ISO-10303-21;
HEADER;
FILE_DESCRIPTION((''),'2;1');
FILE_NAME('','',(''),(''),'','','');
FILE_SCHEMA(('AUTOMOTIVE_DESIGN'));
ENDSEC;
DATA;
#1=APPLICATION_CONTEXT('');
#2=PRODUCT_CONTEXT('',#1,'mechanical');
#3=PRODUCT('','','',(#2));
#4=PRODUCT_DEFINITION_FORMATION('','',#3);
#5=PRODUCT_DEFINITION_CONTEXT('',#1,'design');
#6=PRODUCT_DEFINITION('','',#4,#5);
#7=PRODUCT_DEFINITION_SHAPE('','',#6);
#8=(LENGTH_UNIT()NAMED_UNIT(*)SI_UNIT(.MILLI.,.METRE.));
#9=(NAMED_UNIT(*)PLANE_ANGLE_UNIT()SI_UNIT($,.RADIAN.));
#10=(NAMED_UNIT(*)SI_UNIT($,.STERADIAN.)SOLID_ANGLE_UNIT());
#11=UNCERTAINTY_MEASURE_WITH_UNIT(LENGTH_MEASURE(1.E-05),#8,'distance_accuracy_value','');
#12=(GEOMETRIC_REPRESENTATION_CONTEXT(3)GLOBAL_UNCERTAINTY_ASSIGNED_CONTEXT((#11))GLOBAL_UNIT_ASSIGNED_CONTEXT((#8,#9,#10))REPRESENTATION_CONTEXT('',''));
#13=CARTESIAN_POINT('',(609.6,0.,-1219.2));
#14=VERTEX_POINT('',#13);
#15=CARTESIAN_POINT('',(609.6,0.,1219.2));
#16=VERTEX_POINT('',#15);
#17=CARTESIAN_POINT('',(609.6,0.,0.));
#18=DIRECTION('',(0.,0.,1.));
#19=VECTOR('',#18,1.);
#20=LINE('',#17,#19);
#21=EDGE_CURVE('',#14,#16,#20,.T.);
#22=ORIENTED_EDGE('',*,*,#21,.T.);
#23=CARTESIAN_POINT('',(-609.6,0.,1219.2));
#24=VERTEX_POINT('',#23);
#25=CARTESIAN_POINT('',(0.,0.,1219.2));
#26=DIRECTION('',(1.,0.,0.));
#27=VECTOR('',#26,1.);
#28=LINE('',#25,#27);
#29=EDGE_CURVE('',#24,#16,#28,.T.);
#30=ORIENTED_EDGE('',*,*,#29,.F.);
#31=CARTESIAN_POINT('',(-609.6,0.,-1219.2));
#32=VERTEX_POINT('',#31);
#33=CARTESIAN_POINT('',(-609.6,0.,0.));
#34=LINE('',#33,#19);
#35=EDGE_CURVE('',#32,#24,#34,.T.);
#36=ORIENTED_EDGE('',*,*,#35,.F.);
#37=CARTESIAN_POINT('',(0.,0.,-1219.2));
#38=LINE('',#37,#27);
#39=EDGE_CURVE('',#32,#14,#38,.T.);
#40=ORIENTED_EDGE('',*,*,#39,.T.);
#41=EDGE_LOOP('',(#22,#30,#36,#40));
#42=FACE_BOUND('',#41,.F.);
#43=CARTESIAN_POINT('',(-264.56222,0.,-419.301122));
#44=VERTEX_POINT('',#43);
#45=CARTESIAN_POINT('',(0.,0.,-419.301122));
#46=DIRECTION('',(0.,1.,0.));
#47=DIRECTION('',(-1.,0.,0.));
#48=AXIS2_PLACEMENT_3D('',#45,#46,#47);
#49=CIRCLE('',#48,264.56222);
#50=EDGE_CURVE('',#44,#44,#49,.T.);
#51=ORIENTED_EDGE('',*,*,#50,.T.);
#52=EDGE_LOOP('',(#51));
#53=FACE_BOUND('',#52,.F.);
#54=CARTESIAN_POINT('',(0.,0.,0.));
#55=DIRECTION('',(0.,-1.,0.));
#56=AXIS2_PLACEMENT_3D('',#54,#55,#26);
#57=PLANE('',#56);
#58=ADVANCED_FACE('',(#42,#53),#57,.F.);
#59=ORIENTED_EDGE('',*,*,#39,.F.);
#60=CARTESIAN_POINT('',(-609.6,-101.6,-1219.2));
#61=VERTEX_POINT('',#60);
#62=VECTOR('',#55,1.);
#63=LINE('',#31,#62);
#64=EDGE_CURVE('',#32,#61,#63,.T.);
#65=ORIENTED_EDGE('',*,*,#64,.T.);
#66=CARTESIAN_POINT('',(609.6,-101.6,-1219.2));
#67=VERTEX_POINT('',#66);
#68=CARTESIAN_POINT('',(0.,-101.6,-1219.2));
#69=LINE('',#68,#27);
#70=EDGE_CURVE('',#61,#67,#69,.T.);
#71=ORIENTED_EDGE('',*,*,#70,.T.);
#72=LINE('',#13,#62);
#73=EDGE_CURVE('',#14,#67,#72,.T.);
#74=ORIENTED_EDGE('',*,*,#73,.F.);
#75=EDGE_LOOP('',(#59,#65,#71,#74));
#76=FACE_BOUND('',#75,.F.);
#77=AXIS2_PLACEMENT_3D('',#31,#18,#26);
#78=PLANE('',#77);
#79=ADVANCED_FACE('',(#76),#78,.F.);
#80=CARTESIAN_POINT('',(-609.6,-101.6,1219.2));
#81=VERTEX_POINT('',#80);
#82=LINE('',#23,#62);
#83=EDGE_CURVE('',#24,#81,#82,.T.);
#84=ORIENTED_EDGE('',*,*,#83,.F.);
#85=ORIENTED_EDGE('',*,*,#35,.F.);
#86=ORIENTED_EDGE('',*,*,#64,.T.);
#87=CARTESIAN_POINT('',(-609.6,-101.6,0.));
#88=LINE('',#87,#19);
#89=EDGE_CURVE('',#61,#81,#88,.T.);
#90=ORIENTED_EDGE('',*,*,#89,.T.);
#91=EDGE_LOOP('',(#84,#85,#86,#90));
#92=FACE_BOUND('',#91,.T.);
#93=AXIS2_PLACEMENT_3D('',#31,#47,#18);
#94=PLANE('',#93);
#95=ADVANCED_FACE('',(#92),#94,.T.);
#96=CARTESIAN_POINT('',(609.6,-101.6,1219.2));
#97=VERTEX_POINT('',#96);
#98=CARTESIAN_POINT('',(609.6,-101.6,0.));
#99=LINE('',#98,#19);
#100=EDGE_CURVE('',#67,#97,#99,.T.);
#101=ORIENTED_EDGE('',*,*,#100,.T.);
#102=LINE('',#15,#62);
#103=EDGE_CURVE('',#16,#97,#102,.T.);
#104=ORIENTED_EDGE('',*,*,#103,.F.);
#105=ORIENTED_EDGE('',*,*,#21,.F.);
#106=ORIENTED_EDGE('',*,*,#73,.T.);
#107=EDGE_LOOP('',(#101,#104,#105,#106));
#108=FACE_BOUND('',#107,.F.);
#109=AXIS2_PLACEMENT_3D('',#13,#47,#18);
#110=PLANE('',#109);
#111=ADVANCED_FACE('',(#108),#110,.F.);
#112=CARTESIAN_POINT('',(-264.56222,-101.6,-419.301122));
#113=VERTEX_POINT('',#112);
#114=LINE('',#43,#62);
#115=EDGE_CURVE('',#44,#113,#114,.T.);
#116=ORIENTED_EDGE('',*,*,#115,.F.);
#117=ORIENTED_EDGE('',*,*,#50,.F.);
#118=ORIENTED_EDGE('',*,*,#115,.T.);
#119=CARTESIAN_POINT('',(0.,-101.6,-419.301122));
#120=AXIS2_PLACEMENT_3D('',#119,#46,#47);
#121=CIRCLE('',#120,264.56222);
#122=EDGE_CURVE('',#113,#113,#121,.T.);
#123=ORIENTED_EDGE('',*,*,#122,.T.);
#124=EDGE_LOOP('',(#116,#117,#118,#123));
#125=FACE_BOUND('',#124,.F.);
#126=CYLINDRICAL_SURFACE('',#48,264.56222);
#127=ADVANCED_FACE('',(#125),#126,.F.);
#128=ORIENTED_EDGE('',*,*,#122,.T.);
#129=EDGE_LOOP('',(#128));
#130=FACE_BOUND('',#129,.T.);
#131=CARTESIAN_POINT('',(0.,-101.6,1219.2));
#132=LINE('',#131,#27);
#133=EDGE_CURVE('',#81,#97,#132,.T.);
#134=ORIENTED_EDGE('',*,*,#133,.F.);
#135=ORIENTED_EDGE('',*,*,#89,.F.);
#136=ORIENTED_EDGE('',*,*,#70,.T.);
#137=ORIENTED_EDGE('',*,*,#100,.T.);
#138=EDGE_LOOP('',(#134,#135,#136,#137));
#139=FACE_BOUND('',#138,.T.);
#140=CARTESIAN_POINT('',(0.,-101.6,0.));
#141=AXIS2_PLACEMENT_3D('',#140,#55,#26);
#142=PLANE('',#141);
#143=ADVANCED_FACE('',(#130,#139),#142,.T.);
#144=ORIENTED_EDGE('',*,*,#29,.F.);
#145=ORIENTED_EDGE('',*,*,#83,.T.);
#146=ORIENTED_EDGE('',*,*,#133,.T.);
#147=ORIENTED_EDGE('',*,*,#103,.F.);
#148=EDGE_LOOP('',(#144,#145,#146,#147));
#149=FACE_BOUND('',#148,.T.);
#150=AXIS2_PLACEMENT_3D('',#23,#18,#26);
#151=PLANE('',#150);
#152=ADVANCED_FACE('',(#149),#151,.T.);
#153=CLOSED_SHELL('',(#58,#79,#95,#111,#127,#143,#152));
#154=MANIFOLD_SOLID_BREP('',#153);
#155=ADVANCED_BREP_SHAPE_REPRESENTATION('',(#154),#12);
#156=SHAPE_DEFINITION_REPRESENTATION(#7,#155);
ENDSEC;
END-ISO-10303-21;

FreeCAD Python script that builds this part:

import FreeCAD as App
import Part
import Sketcher
from FreeCAD import Vector
Q = App.Units.Quantity

doc = App.newDocument("Part")
body = doc.addObject("PartDesign::Body", "Body")

sketch1 = body.newObject("Sketcher::SketchObject", "Sketch")
sketch1.AttachmentSupport = (doc.getObject("XZ_Plane"), [""])
sketch1.MapMode = "FlatFace"
sketch1.addGeometry([
    Part.LineSegment(Vector(-609.6, 1219.2, 0), Vector(-609.6, -1219.2, 0)),
    Part.LineSegment(Vector(-609.6, -1219.2, 0), Vector(609.6, -1219.2, 0)),
    Part.LineSegment(Vector(609.6, -1219.2, 0), Vector(609.6, 1219.2, 0)),
    Part.LineSegment(Vector(609.6, 1219.2, 0), Vector(-609.6, 1219.2, 0)),
], False)
sketch1.addConstraint([
    Sketcher.Constraint("Coincident", 0, 2, 1, 1),
    Sketcher.Constraint("Coincident", 1, 2, 2, 1),
    Sketcher.Constraint("Coincident", 2, 2, 3, 1),
    Sketcher.Constraint("Coincident", 3, 2, 0, 1),
    Sketcher.Constraint("Vertical", 0),
    Sketcher.Constraint("Horizontal", 1),
    Sketcher.Constraint("Vertical", 2),
    Sketcher.Constraint("Horizontal", 3),
    Sketcher.Constraint("Symmetric", 0, 2, 2, 2, -1, 1),
    Sketcher.Constraint("DistanceX", 1, 1, 1, 2, Q("48 in")),
    Sketcher.Constraint("DistanceY", 0, 2, 0, 1, Q("96 in")),
])
pad1 = body.newObject("PartDesign::Pad", "Pad")
pad1.Profile = sketch1
pad1.Length = Q("4 in")

sketch2 = body.newObject("Sketcher::SketchObject", "Sketch001")
sketch2.AttachmentSupport = (doc.getObject("XZ_Plane"), [""])
sketch2.MapMode = "FlatFace"
sketch2.addGeometry(Part.Circle(Vector(0, -419.301122, 0), Vector(0, 0, 1), 264.56222), False)
sketch2.addConstraint([
    Sketcher.Constraint("PointOnObject", 0, 3, -2),
    Sketcher.Constraint("Diameter", 0, Q("529.12444 mm")),
    Sketcher.Constraint("DistanceY", 0, 3, -1, 1, Q("419.301122 mm")),
])
pocket1 = body.newObject("PartDesign::Pocket", "Pocket")
pocket1.Profile = sketch2
pocket1.Type = "ThroughAll"
pocket1.Reversed = True

doc.recompute()
